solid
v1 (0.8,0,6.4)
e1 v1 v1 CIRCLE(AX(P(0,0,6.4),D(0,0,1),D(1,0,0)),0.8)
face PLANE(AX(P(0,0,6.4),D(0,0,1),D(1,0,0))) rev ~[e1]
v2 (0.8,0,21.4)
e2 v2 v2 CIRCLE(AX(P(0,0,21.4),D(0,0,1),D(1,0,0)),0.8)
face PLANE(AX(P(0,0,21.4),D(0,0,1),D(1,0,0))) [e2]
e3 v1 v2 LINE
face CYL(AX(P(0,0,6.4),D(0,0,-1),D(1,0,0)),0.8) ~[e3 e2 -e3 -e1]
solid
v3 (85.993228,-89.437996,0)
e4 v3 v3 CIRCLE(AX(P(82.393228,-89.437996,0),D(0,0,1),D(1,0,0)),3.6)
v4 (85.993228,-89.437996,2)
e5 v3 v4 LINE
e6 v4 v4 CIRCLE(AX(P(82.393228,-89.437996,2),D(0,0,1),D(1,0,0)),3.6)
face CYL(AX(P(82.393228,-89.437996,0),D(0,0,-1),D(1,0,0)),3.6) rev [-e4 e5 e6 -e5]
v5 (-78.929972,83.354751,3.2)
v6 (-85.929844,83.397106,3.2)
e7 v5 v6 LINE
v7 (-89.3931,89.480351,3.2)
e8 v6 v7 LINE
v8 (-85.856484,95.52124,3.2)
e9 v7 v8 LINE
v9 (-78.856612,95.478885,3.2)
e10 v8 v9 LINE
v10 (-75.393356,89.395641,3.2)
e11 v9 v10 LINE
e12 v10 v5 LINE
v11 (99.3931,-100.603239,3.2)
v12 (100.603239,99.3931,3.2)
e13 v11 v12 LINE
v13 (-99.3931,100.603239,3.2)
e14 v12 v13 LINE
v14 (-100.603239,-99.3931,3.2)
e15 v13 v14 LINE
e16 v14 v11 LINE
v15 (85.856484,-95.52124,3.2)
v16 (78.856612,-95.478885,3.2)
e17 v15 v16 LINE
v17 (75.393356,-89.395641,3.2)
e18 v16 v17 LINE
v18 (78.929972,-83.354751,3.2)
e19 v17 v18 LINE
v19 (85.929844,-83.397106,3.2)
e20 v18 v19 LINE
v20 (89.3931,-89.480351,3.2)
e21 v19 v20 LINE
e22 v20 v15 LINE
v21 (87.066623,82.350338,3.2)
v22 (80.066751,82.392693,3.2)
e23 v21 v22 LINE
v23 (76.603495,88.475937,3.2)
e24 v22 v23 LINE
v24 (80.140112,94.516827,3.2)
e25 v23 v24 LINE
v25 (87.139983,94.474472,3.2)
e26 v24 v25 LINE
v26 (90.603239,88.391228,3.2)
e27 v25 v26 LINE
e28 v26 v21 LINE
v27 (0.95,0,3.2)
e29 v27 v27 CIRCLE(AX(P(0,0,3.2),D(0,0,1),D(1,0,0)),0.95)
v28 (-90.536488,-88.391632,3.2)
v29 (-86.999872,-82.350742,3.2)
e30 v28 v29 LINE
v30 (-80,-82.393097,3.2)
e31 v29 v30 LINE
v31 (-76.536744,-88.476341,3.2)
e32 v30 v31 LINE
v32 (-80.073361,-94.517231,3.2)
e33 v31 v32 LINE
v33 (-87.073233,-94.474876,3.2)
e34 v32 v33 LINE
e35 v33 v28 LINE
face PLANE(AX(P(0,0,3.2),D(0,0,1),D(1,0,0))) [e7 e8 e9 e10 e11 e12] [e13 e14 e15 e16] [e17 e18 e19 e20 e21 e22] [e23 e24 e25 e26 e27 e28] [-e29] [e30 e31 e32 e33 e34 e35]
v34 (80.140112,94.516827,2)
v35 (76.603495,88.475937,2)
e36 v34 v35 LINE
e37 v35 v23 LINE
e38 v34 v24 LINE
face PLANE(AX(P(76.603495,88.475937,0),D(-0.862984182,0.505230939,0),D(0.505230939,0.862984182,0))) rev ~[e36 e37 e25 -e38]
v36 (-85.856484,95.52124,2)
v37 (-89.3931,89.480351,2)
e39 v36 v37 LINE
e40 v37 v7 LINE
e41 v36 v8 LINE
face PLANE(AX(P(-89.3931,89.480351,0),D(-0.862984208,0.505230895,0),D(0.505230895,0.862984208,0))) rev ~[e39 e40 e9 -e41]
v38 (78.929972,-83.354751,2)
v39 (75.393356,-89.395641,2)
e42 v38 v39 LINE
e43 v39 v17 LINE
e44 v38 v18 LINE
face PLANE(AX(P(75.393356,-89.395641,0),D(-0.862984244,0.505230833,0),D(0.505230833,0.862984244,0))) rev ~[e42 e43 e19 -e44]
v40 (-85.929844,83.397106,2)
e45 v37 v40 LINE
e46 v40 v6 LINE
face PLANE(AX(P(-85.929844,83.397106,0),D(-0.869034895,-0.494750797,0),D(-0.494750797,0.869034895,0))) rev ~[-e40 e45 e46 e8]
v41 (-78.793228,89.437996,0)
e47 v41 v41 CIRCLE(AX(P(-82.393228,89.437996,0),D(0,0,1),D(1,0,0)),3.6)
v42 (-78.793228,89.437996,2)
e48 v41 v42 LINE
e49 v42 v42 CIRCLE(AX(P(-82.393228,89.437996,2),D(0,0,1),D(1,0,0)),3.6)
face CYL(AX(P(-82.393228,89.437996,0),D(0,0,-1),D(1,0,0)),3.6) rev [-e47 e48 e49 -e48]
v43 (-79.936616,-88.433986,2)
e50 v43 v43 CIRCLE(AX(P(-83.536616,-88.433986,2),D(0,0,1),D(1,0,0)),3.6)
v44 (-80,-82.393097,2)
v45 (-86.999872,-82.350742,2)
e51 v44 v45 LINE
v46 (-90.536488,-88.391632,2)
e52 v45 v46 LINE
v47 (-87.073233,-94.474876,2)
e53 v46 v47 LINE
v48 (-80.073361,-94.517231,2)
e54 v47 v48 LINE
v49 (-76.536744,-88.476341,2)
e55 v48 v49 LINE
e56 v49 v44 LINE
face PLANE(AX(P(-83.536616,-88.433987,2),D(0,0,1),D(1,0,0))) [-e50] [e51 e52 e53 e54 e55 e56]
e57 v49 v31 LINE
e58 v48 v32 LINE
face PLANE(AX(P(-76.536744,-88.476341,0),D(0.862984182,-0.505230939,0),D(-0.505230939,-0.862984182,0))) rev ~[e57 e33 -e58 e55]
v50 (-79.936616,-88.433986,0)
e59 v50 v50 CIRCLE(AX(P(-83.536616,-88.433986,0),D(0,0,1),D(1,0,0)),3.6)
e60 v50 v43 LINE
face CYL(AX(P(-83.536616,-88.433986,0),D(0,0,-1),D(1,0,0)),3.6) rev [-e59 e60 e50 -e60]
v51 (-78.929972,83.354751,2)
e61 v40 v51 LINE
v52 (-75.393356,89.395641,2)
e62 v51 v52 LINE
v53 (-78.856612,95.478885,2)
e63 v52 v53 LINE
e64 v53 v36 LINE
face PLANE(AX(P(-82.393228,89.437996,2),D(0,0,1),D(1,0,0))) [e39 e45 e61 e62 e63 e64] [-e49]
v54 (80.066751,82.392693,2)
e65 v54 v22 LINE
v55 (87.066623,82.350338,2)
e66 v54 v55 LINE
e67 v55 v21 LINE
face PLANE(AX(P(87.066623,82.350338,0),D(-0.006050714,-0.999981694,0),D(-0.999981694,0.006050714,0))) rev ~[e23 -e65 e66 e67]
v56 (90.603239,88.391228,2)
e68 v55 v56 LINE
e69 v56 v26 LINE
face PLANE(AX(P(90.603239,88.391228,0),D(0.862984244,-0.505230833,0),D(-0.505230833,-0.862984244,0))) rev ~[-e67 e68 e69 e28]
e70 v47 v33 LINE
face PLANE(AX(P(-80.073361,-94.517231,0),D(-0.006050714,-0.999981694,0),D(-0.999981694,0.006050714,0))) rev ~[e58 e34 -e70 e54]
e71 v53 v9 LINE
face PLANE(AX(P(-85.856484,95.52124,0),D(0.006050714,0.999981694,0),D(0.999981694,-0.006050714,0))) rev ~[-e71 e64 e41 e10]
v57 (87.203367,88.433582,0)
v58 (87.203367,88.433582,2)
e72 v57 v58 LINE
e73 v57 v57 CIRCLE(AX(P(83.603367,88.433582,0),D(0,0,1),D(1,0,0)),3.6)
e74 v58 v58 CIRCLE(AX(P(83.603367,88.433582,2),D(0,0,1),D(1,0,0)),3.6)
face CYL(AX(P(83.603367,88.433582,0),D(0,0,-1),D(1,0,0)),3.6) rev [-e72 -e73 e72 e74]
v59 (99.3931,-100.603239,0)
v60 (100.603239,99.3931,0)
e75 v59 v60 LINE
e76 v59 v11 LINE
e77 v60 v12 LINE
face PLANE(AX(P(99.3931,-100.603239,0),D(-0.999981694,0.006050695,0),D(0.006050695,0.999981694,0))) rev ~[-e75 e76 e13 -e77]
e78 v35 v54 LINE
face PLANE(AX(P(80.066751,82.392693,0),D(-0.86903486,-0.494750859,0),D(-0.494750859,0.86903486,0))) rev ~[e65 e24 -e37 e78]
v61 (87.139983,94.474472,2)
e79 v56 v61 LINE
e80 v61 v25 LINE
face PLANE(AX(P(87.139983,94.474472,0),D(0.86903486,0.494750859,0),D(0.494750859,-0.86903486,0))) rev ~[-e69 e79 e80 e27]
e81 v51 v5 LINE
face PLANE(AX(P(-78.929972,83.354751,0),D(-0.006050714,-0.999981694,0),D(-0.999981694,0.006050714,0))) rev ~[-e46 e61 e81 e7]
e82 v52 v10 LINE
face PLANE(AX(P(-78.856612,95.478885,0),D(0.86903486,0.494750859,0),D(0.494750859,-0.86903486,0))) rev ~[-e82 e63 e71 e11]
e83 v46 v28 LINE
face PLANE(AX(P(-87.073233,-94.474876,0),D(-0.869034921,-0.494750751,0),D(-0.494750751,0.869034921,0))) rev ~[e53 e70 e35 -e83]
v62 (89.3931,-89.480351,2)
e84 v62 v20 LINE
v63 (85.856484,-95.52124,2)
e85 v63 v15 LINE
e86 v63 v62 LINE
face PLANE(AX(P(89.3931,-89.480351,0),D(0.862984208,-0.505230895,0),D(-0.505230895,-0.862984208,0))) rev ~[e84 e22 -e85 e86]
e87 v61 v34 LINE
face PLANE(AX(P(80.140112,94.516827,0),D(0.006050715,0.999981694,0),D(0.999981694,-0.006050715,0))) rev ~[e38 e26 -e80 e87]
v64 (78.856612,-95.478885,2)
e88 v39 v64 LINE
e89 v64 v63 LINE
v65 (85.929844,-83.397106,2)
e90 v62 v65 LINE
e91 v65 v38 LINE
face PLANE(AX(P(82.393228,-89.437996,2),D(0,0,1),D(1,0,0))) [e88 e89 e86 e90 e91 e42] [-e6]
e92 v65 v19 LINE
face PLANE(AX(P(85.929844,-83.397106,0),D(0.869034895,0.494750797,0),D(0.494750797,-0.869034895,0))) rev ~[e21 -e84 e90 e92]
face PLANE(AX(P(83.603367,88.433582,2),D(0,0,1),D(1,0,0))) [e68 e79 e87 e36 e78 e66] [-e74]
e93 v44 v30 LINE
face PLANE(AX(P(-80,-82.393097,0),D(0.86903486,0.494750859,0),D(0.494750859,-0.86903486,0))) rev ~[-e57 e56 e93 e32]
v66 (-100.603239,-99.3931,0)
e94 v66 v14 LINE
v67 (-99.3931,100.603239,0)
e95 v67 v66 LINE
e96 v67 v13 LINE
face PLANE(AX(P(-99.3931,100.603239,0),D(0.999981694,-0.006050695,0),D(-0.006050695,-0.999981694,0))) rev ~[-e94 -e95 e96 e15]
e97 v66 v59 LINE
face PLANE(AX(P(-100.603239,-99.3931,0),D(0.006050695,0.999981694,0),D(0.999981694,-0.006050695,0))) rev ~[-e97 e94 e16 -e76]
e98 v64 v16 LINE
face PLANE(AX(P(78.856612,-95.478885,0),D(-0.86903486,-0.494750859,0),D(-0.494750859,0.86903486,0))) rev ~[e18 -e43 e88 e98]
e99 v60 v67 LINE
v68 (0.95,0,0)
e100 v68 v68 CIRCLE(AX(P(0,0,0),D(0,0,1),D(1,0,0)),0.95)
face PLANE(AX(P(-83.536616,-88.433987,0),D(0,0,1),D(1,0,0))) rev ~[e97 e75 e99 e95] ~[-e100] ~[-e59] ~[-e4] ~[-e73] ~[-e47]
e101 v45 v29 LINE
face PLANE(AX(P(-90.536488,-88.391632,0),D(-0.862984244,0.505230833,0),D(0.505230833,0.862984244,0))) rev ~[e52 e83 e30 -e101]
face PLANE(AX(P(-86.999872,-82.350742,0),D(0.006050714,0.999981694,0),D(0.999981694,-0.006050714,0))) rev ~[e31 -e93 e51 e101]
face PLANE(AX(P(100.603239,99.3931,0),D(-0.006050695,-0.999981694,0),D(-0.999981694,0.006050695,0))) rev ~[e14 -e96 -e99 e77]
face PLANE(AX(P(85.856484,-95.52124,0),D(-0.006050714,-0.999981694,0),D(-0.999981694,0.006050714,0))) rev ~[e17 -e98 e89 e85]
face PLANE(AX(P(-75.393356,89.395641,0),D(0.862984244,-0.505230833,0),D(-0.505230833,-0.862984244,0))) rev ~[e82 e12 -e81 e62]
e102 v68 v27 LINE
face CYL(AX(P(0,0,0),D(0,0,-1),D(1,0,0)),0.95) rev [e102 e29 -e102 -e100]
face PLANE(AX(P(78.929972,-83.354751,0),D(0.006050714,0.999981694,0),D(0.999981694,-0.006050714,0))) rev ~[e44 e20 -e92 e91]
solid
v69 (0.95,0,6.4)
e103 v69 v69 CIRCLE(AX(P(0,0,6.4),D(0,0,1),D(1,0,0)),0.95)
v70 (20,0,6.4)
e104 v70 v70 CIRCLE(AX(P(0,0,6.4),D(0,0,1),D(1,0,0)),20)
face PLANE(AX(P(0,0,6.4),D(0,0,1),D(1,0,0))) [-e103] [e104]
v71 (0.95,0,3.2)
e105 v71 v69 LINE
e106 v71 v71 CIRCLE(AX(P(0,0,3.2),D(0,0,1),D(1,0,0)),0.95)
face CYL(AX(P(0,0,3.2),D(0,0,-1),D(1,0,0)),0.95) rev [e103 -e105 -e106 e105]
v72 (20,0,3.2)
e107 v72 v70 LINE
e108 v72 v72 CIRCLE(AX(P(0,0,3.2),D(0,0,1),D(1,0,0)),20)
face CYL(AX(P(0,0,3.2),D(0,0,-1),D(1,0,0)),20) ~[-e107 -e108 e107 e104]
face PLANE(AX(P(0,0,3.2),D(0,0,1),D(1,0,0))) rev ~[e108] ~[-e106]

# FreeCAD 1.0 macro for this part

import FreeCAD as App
import Part
import Sketcher
Q = App.Units.Quantity


def add_polygon(sketch, points):
    """Adds a closed chain of lines whose ends are joined by coincident constraints."""
    first, n = sketch.GeometryCount, len(points)
    for a, b in zip(points, points[1:] + points[:1]):
        sketch.addGeometry(Part.LineSegment(App.Vector(*a, 0), App.Vector(*b, 0)), False)
    for i in range(n):
        sketch.addConstraint(Sketcher.Constraint("Coincident", first + i, 2, first + (i + 1) % n, 1))

doc = App.newDocument("Part")
params = doc.addObject("Spreadsheet::Sheet", "Params")
for row, (alias, value) in enumerate([
    ("sketch1_diameter", "1.9 mm"),
    ("sketch1_length", "200 mm"),
    ("sketch1_length2", "7 mm"),
    ("pad1_length", "3.2 mm"),
    ("sketch2_diameter", "7.2 mm"),
    ("sketch2_length", "7 mm"),
    ("pad2_length", "2 mm"),
    ("sketch3_diameter", "40 mm"),
    ("sketch3_diameter2", "1.9 mm"),
    ("pad3_length", "3.2 mm"),
    ("sketch4_diameter", "1.6 mm"),
    ("pad4_length", "15 mm"),
], start=1):
    params.set(f"A{row}", alias)
    params.set(f"B{row}", "=" + value)
    params.setAlias(f"B{row}", alias)

body = doc.addObject("PartDesign::Body", "Body")

# Sketch on XY plane
sketch1 = doc.addObject("Sketcher::SketchObject", "Sketch")
body.addObject(sketch1)
sketch1.AttachmentSupport = (doc.XY_Plane, [""])
sketch1.MapMode = "FlatFace"
add_polygon(sketch1, [(100.6, 99.4), (-99.4, 100.6), (-100.6, -99.4), (99.4, -100.6)])  # lines 0-3
add_polygon(sketch1, [(-80.1, -94.5), (-87.1, -94.5), (-90.5, -88.4), (-87, -82.4), (-80, -82.4), (-76.5, -88.5)])  # lines 4-9
add_polygon(sketch1, [(78.9, -83.4), (85.9, -83.4), (89.4, -89.5), (85.9, -95.5), (78.9, -95.5), (75.4, -89.4)])  # lines 10-15
sketch1.addGeometry(Part.Circle(App.Vector(0, 0, 0), App.Vector(0, 0, 1), 0.9), False)  # 16
add_polygon(sketch1, [(-85.9, 95.5), (-78.9, 95.5), (-75.4, 89.4), (-78.9, 83.4), (-85.9, 83.4), (-89.4, 89.5)])  # lines 17-22
add_polygon(sketch1, [(80.1, 94.5), (87.1, 94.5), (90.6, 88.4), (87.1, 82.4), (80.1, 82.4), (76.6, 88.5)])  # lines 23-28
sketch1.addConstraint(Sketcher.Constraint("Coincident", 16, 3, -1, 1))
sketch1.addConstraint(Sketcher.Constraint("Symmetric", 0, 2, 2, 2, -1, 1))
sketch1.addConstraint(Sketcher.Constraint("Symmetric", 1, 2, 3, 2, -1, 1))
sketch1.addConstraint(Sketcher.Constraint("Symmetric", 13, 2, 17, 2, -1, 1))
sketch1.addConstraint(Sketcher.Constraint("Symmetric", 14, 2, 18, 2, -1, 1))
sketch1.addConstraint(Sketcher.Constraint("Symmetric", 15, 2, 19, 2, -1, 1))
sketch1.addConstraint(Sketcher.Constraint("Symmetric", 10, 2, 20, 2, -1, 1))
sketch1.addConstraint(Sketcher.Constraint("Symmetric", 11, 2, 21, 2, -1, 1))
sketch1.addConstraint(Sketcher.Constraint("Symmetric", 12, 2, 22, 2, -1, 1))
sketch1.addConstraint(Sketcher.Constraint("Perpendicular", 0, 1))
sketch1.addConstraint(Sketcher.Constraint("Perpendicular", 3, 4))
sketch1.addConstraint(Sketcher.Constraint("Parallel", 4, 7))
sketch1.addConstraint(Sketcher.Constraint("Parallel", 5, 8))
sketch1.addConstraint(Sketcher.Constraint("Parallel", 6, 9))
sketch1.addConstraint(Sketcher.Constraint("Parallel", 7, 10))
sketch1.addConstraint(Sketcher.Constraint("Parallel", 8, 11))
sketch1.addConstraint(Sketcher.Constraint("Parallel", 9, 12))
sketch1.addConstraint(Sketcher.Constraint("Parallel", 10, 13))
sketch1.addConstraint(Sketcher.Constraint("Parallel", 11, 14))
sketch1.addConstraint(Sketcher.Constraint("Parallel", 12, 15))
sketch1.addConstraint(Sketcher.Constraint("Parallel", 20, 23))
sketch1.addConstraint(Sketcher.Constraint("Parallel", 21, 24))
sketch1.addConstraint(Sketcher.Constraint("Parallel", 22, 25))
sketch1.addConstraint(Sketcher.Constraint("Parallel", 23, 26))
sketch1.addConstraint(Sketcher.Constraint("Parallel", 24, 27))
sketch1.addConstraint(Sketcher.Constraint("Parallel", 25, 28))
sketch1.addConstraint(Sketcher.Constraint("Equal", 0, 1))
sketch1.addConstraint(Sketcher.Constraint("Equal", 4, 5))
sketch1.addConstraint(Sketcher.Constraint("Equal", 5, 6))
sketch1.addConstraint(Sketcher.Constraint("Equal", 6, 7))
sketch1.addConstraint(Sketcher.Constraint("Equal", 9, 10))
sketch1.addConstraint(Sketcher.Constraint("Equal", 10, 11))
sketch1.addConstraint(Sketcher.Constraint("Equal", 11, 12))
sketch1.addConstraint(Sketcher.Constraint("Equal", 12, 13))
sketch1.addConstraint(Sketcher.Constraint("Equal", 22, 23))
sketch1.addConstraint(Sketcher.Constraint("Equal", 23, 24))
sketch1.addConstraint(Sketcher.Constraint("Equal", 24, 25))
sketch1.addConstraint(Sketcher.Constraint("Equal", 25, 26))
sketch1.addConstraint(Sketcher.Constraint("Diameter", 16, Q("1.9 mm")))
sketch1.addConstraint(Sketcher.Constraint("Distance", 0, Q("200 mm")))
sketch1.addConstraint(Sketcher.Constraint("Distance", 4, Q("7 mm")))
sketch1.addConstraint(Sketcher.Constraint("DistanceX", 7, 2, -1, 1, Q("80 mm")))
sketch1.addConstraint(Sketcher.Constraint("DistanceX", 11, 2, 2, 2, Q("10 mm")))
sketch1.addConstraint(Sketcher.Constraint("DistanceX", 24, 2, 3, 2, Q("10 mm")))
sketch1.addConstraint(Sketcher.Constraint("DistanceY", 2, 2, 12, 2, Q("5.081999 mm")))
sketch1.addConstraint(Sketcher.Constraint("DistanceX", 0, 2, -1, 1, Q("99.3931 mm")))
sketch1.addConstraint(Sketcher.Constraint("DistanceY", 8, 2, 6, 2, Q("6.125599 mm")))
sketch1.addConstraint(Sketcher.Constraint("DistanceY", 12, 2, 8, 2, Q("7.044899 mm")))
sketch1.addConstraint(Sketcher.Constraint("DistanceX", 5, 2, -1, 1, Q("90.536488 mm")))
sketch1.addConstraint(Sketcher.Constraint("DistanceY", -1, 1, 24, 2, Q("88.391228 mm")))
sketch1.setExpression("Constraints[66]", "Params.sketch1_diameter")
sketch1.setExpression("Constraints[67]", "Params.sketch1_length")
sketch1.setExpression("Constraints[68]", "Params.sketch1_length2")
pad1 = doc.addObject("PartDesign::Pad", "Pad")
body.addObject(pad1)
pad1.Profile = sketch1
pad1.setExpression("Length", "Params.pad1_length")

# Sketch on XY plane
sketch2 = doc.addObject("Sketcher::SketchObject", "Sketch001")
body.addObject(sketch2)
sketch2.AttachmentSupport = (doc.XY_Plane, [""])
sketch2.MapMode = "FlatFace"
add_polygon(sketch2, [(-87, -82.4), (-90.5, -88.4), (-87.1, -94.5), (-80.1, -94.5), (-76.5, -88.5), (-80, -82.4)])  # lines 0-5
sketch2.addGeometry(Part.Circle(App.Vector(-83.5, -88.4, 0), App.Vector(0, 0, 1), 3.6), False)  # 6
add_polygon(sketch2, [(-78.9, 83.4), (-75.4, 89.4), (-78.9, 95.5), (-85.9, 95.5), (-89.4, 89.5), (-85.9, 83.4)])  # lines 7-12
sketch2.addGeometry(Part.Circle(App.Vector(-82.4, 89.4, 0), App.Vector(0, 0, 1), 3.6), False)  # 13
add_polygon(sketch2, [(85.9, -95.5), (89.4, -89.5), (85.9, -83.4), (78.9, -83.4), (75.4, -89.4), (78.9, -95.5)])  # lines 14-19
sketch2.addGeometry(Part.Circle(App.Vector(82.4, -89.4, 0), App.Vector(0, 0, 1), 3.6), False)  # 20
add_polygon(sketch2, [(87.1, 82.4), (90.6, 88.4), (87.1, 94.5), (80.1, 94.5), (76.6, 88.5), (80.1, 82.4)])  # lines 21-26
sketch2.addGeometry(Part.Circle(App.Vector(83.6, 88.4, 0), App.Vector(0, 0, 1), 3.6), False)  # 27
sketch2.addConstraint(Sketcher.Constraint("Equal", 6, 13))
sketch2.addConstraint(Sketcher.Constraint("Equal", 13, 20))
sketch2.addConstraint(Sketcher.Constraint("Equal", 20, 27))
sketch2.addConstraint(Sketcher.Constraint("Symmetric", 13, 3, 20, 3, -1, 1))
sketch2.addConstraint(Sketcher.Constraint("Symmetric", 10, 2, 14, 2, -1, 1))
sketch2.addConstraint(Sketcher.Constraint("Symmetric", 11, 2, 15, 2, -1, 1))
sketch2.addConstraint(Sketcher.Constraint("Symmetric", 12, 2, 16, 2, -1, 1))
sketch2.addConstraint(Sketcher.Constraint("Symmetric", 7, 2, 17, 2, -1, 1))
sketch2.addConstraint(Sketcher.Constraint("Symmetric", 8, 2, 18, 2, -1, 1))
sketch2.addConstraint(Sketcher.Constraint("Symmetric", 9, 2, 19, 2, -1, 1))
sketch2.addConstraint(Sketcher.Constraint("Parallel", 0, 3))
sketch2.addConstraint(Sketcher.Constraint("Parallel", 1, 4))
sketch2.addConstraint(Sketcher.Constraint("Parallel", 2, 5))
sketch2.addConstraint(Sketcher.Constraint("Parallel", 3, 7))
sketch2.addConstraint(Sketcher.Constraint("Parallel", 4, 8))
sketch2.addConstraint(Sketcher.Constraint("Parallel", 5, 9))
sketch2.addConstraint(Sketcher.Constraint("Parallel", 7, 10))
sketch2.addConstraint(Sketcher.Constraint("Parallel", 8, 11))
sketch2.addConstraint(Sketcher.Constraint("Parallel", 9, 12))
sketch2.addConstraint(Sketcher.Constraint("Parallel", 17, 21))
sketch2.addConstraint(Sketcher.Constraint("Parallel", 18, 22))
sketch2.addConstraint(Sketcher.Constraint("Parallel", 19, 23))
sketch2.addConstraint(Sketcher.Constraint("Parallel", 21, 24))
sketch2.addConstraint(Sketcher.Constraint("Parallel", 22, 25))
sketch2.addConstraint(Sketcher.Constraint("Parallel", 23, 26))
sketch2.addConstraint(Sketcher.Constraint("Equal", 0, 1))
sketch2.addConstraint(Sketcher.Constraint("Equal", 1, 2))
sketch2.addConstraint(Sketcher.Constraint("Equal", 2, 3))
sketch2.addConstraint(Sketcher.Constraint("Equal", 5, 7))
sketch2.addConstraint(Sketcher.Constraint("Equal", 7, 8))
sketch2.addConstraint(Sketcher.Constraint("Equal", 8, 9))
sketch2.addConstraint(Sketcher.Constraint("Equal", 9, 10))
sketch2.addConstraint(Sketcher.Constraint("Equal", 19, 21))
sketch2.addConstraint(Sketcher.Constraint("Equal", 21, 22))
sketch2.addConstraint(Sketcher.Constraint("Equal", 22, 23))
sketch2.addConstraint(Sketcher.Constraint("Equal", 23, 24))
sketch2.addConstraint(Sketcher.Constraint("Diameter", 6, Q("7.2 mm")))
sketch2.addConstraint(Sketcher.Constraint("Distance", 0, Q("7 mm")))
sketch2.addConstraint(Sketcher.Constraint("DistanceX", 4, 2, -1, 1, Q("80 mm")))
sketch2.addConstraint(Sketcher.Constraint("DistanceX", 10, 2, -1, 1, Q("89.3931 mm")))
sketch2.addConstraint(Sketcher.Constraint("DistanceX", 1, 2, 27, 3, Q("170.6766 mm")))
sketch2.addConstraint(Sketcher.Constraint("DistanceY", 2, 2, 0, 2, Q("6.125599 mm")))
sketch2.addConstraint(Sketcher.Constraint("DistanceX", 3, 2, 17, 2, Q("151.9301 mm")))
sketch2.addConstraint(Sketcher.Constraint("DistanceY", 17, 2, 3, 2, Q("0.9193 mm")))
sketch2.addConstraint(Sketcher.Constraint("DistanceY", -1, 1, 27, 3, Q("88.433582 mm")))
sketch2.addConstraint(Sketcher.Constraint("DistanceX", 0, 2, -1, 1, Q("90.536488 mm")))
sketch2.addConstraint(Sketcher.Constraint("DistanceY", 0, 2, -1, 1, Q("88.391632 mm")))
sketch2.addConstraint(Sketcher.Constraint("DistanceX", -1, 1, 21, 2, Q("90.603239 mm")))
sketch2.addConstraint(Sketcher.Constraint("DistanceY", -1, 1, 21, 2, Q("88.391228 mm")))
sketch2.addConstraint(Sketcher.Constraint("DistanceX", 6, 3, 13, 3, Q("1.143388 mm")))
sketch2.addConstraint(Sketcher.Constraint("DistanceY", 6, 3, 13, 3, Q("177.871982 mm")))
sketch2.addConstraint(Sketcher.Constraint("DistanceY", 20, 3, 6, 3, Q("1.00401 mm")))
sketch2.addConstraint(Sketcher.Constraint("DistanceX", 20, 3, 27, 3, Q("1.210139 mm")))
sketch2.setExpression("Constraints[60]", "Params.sketch2_diameter")
sketch2.setExpression("Constraints[61]", "Params.sketch2_length")
pad2 = doc.addObject("PartDesign::Pad", "Pad001")
body.addObject(pad2)
pad2.Profile = sketch2
pad2.setExpression("Length", "Params.pad2_length")
body2 = doc.addObject("PartDesign::Body", "Body001")

# Sketch on XY plane
sketch3 = doc.addObject("Sketcher::SketchObject", "Sketch002")
body2.addObject(sketch3)
sketch3.AttachmentSupport = (doc.getObject("XY_Plane001"), [""])
sketch3.MapMode = "FlatFace"
sketch3.AttachmentOffset = App.Placement(App.Vector(0, 0, 3.2), App.Rotation())
sketch3.addGeometry(Part.Circle(App.Vector(0, 0, 0), App.Vector(0, 0, 1), 20), False)
sketch3.addGeometry(Part.Circle(App.Vector(0, 0, 0), App.Vector(0, 0, 1), 0.9), False)
sketch3.addConstraint(Sketcher.Constraint("Coincident", 0, 3, -1, 1))
sketch3.addConstraint(Sketcher.Constraint("Coincident", 1, 3, -1, 1))
sketch3.addConstraint(Sketcher.Constraint("Diameter", 0, Q("40 mm")))
sketch3.addConstraint(Sketcher.Constraint("Diameter", 1, Q("1.9 mm")))
sketch3.setExpression("Constraints[2]", "Params.sketch3_diameter")
sketch3.setExpression("Constraints[3]", "Params.sketch3_diameter2")
pad3 = doc.addObject("PartDesign::Pad", "Pad002")
body2.addObject(pad3)
pad3.Profile = sketch3
pad3.setExpression("Length", "Params.pad3_length")
body3 = doc.addObject("PartDesign::Body", "Body002")

# Sketch on XY plane
sketch4 = doc.addObject("Sketcher::SketchObject", "Sketch003")
body3.addObject(sketch4)
sketch4.AttachmentSupport = (doc.getObject("XY_Plane002"), [""])
sketch4.MapMode = "FlatFace"
sketch4.AttachmentOffset = App.Placement(App.Vector(0, 0, 6.4), App.Rotation())
sketch4.addGeometry(Part.Circle(App.Vector(0, 0, 0), App.Vector(0, 0, 1), 0.8), False)
sketch4.addConstraint(Sketcher.Constraint("Coincident", 0, 3, -1, 1))
sketch4.addConstraint(Sketcher.Constraint("Diameter", 0, Q("1.6 mm")))
sketch4.setExpression("Constraints[1]", "Params.sketch4_diameter")
pad4 = doc.addObject("PartDesign::Pad", "Pad003")
body3.addObject(pad4)
pad4.Profile = sketch4
pad4.setExpression("Length", "Params.pad4_length")

doc.recompute()
